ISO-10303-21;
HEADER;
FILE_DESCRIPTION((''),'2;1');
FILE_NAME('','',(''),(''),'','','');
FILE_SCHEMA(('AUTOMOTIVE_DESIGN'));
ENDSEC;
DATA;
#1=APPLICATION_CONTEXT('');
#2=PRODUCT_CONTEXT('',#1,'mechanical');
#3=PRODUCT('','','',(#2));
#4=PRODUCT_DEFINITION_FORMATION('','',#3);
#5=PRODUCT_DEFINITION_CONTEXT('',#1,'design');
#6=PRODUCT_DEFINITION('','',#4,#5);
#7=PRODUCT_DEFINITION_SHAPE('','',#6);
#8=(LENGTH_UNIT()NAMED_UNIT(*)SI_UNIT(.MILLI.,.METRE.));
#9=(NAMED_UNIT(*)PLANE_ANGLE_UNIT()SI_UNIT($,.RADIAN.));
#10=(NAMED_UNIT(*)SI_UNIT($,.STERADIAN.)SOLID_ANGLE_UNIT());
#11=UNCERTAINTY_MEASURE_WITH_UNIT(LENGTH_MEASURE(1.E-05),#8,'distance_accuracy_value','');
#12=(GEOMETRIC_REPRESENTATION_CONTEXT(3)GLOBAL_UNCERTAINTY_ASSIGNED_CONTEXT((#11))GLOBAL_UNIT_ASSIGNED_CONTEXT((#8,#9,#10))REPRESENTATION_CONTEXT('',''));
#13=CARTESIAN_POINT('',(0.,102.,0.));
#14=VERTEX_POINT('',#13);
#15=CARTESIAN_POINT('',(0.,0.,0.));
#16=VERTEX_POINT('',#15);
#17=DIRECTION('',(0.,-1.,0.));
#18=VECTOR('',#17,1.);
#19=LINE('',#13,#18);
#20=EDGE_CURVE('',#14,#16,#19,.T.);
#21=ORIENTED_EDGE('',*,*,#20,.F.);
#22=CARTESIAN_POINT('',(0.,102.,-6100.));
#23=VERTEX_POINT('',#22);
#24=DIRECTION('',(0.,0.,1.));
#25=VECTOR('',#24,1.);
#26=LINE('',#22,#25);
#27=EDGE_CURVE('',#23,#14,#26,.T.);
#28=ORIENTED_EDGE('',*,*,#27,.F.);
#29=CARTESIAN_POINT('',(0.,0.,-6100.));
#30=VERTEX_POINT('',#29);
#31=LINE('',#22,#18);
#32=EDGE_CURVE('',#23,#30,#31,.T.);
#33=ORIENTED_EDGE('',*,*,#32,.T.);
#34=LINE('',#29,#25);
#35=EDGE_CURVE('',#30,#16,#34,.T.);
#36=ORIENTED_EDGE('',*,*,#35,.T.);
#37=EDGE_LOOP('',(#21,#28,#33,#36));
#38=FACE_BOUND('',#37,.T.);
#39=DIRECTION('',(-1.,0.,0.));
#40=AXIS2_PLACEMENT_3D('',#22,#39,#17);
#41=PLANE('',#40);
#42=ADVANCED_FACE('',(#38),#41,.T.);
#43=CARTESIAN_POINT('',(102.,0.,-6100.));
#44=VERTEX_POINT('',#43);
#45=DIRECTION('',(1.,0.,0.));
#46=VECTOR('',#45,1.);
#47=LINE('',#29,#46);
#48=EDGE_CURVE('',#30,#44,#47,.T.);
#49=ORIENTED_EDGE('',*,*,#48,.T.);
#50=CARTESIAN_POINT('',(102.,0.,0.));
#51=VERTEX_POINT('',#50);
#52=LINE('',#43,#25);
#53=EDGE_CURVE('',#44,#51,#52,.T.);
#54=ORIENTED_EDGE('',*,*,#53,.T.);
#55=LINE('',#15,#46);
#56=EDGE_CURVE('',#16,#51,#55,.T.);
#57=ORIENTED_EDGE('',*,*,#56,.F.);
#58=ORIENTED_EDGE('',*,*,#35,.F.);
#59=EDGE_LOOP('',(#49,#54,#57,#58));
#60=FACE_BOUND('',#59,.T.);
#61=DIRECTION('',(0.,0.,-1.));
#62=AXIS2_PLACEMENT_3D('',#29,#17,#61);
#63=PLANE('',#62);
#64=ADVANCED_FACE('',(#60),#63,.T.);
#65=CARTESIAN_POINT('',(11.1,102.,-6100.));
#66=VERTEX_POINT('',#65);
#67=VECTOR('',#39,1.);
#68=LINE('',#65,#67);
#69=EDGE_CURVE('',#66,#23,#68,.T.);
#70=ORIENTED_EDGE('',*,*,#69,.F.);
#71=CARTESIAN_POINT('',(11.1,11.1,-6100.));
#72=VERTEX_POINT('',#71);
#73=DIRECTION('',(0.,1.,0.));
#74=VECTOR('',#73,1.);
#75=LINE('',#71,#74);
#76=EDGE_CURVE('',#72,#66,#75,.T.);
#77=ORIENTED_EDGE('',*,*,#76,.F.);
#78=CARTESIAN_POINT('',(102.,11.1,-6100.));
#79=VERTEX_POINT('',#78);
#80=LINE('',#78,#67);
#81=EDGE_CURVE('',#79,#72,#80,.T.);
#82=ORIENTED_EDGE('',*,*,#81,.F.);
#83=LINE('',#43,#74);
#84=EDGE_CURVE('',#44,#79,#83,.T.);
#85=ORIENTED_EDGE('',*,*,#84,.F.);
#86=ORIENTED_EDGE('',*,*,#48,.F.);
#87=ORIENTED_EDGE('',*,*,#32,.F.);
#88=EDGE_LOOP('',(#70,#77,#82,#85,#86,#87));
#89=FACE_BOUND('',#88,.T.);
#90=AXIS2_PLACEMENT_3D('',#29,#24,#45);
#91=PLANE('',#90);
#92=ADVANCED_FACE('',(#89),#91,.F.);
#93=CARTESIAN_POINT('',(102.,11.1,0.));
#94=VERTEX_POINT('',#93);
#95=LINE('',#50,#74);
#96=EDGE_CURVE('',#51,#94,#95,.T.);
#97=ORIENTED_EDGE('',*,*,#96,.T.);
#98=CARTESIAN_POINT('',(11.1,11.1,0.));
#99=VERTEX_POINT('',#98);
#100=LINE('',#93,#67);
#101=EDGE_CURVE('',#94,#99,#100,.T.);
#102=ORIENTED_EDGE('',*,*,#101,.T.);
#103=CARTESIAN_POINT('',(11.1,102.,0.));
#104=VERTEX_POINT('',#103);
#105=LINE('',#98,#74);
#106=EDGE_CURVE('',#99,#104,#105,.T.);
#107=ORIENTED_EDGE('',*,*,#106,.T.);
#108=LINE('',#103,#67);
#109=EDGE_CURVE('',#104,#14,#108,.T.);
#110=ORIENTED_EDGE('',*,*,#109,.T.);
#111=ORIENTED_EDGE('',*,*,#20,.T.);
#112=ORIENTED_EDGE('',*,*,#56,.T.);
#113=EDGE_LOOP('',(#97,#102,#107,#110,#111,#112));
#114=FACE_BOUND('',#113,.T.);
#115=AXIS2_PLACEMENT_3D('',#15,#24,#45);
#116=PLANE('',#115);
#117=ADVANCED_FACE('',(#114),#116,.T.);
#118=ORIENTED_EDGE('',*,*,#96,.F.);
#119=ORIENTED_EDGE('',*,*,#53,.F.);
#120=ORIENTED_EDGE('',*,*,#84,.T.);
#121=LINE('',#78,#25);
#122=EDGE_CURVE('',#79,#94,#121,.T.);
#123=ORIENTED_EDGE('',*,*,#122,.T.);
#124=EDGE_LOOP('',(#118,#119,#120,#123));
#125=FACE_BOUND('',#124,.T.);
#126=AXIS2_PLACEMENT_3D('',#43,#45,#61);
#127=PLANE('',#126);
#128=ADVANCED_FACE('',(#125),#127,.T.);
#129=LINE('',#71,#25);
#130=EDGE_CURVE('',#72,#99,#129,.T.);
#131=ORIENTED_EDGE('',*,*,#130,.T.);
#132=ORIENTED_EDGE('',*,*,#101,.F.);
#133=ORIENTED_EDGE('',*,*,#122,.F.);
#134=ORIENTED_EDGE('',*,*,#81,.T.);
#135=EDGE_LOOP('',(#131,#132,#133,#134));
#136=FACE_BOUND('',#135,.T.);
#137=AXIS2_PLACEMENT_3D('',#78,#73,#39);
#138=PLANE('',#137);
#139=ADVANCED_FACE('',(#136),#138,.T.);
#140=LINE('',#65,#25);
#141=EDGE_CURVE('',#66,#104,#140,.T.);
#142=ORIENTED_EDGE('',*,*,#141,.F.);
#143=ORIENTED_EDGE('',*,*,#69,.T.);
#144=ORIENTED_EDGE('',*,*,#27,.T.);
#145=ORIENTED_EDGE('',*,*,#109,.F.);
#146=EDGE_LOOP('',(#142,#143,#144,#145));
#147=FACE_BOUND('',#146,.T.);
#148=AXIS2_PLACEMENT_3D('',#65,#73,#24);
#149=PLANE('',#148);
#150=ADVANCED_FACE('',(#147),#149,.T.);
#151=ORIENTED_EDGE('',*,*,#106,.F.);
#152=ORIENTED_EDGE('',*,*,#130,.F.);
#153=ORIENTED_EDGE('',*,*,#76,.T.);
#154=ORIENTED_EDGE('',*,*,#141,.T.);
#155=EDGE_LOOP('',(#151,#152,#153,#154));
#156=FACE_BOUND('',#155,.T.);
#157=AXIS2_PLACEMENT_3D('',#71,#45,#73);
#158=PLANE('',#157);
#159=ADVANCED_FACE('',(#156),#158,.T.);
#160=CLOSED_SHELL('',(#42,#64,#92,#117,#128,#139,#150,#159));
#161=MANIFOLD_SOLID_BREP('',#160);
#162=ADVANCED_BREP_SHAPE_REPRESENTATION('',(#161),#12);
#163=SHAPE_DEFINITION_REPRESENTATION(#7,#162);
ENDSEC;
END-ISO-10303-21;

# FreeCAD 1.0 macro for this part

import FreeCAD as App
import Part
import Sketcher

V = App.Vector

doc = App.newDocument("Part")
params = doc.addObject("Spreadsheet::Sheet", "Params")
for row, (alias, value) in enumerate([
    ("sketch1_width", "102 mm"),
    ("sketch1_width2", "90.9 mm"),
    ("pad1_length", "6100 mm"),
], start=1):
    params.set(f"A{row}", alias)
    params.set(f"B{row}", "=" + value)
    params.setAlias(f"B{row}", alias)

body = doc.addObject("PartDesign::Body", "Body")

sketch1 = body.newObject("Sketcher::SketchObject", "Sketch")
sketch1.AttachmentSupport = (doc.getObject("XY_Plane"), [""])
sketch1.MapMode = "FlatFace"
sketch1.addGeometry(Part.LineSegment(V(0, 102, 0), V(0, 0, 0)), False)
sketch1.addGeometry(Part.LineSegment(V(0, 0, 0), V(102, 0, 0)), False)
sketch1.addGeometry(Part.LineSegment(V(102, 0, 0), V(102, 11, 0)), False)
sketch1.addGeometry(Part.LineSegment(V(102, 11, 0), V(11, 11, 0)), False)
sketch1.addGeometry(Part.LineSegment(V(11, 11, 0), V(11, 102, 0)), False)
sketch1.addGeometry(Part.LineSegment(V(11, 102, 0), V(0, 102, 0)), False)
sketch1.addConstraint(Sketcher.Constraint("Coincident", 0, 2, 1, 1))
sketch1.addConstraint(Sketcher.Constraint("Coincident", 1, 2, 2, 1))
sketch1.addConstraint(Sketcher.Constraint("Coincident", 2, 2, 3, 1))
sketch1.addConstraint(Sketcher.Constraint("Coincident", 3, 2, 4, 1))
sketch1.addConstraint(Sketcher.Constraint("Coincident", 4, 2, 5, 1))
sketch1.addConstraint(Sketcher.Constraint("Coincident", 5, 2, 0, 1))
sketch1.addConstraint(Sketcher.Constraint("Vertical", 0))
sketch1.addConstraint(Sketcher.Constraint("Horizontal", 1))
sketch1.addConstraint(Sketcher.Constraint("Vertical", 2))
sketch1.addConstraint(Sketcher.Constraint("Horizontal", 3))
sketch1.addConstraint(Sketcher.Constraint("Vertical", 4))
sketch1.addConstraint(Sketcher.Constraint("Horizontal", 5))
sketch1.addConstraint(Sketcher.Constraint("Coincident", 0, 2, -1, 1))
sketch1.addConstraint(Sketcher.Constraint("Equal", 1, 0))
sketch1.addConstraint(Sketcher.Constraint("Equal", 5, 2))
sketch1.addConstraint(Sketcher.Constraint("DistanceX", 1, 1, 1, 2, 102.0))
sketch1.addConstraint(Sketcher.Constraint("DistanceX", 3, 2, 3, 1, 90.9))
sketch1.setExpression("Constraints[15]", "Params.sketch1_width")
sketch1.setExpression("Constraints[16]", "Params.sketch1_width2")
pad1 = body.newObject("PartDesign::Pad", "Pad")
pad1.Profile = sketch1
pad1.setExpression("Length", "Params.pad1_length")
pad1.Reversed = True

doc.recompute()
